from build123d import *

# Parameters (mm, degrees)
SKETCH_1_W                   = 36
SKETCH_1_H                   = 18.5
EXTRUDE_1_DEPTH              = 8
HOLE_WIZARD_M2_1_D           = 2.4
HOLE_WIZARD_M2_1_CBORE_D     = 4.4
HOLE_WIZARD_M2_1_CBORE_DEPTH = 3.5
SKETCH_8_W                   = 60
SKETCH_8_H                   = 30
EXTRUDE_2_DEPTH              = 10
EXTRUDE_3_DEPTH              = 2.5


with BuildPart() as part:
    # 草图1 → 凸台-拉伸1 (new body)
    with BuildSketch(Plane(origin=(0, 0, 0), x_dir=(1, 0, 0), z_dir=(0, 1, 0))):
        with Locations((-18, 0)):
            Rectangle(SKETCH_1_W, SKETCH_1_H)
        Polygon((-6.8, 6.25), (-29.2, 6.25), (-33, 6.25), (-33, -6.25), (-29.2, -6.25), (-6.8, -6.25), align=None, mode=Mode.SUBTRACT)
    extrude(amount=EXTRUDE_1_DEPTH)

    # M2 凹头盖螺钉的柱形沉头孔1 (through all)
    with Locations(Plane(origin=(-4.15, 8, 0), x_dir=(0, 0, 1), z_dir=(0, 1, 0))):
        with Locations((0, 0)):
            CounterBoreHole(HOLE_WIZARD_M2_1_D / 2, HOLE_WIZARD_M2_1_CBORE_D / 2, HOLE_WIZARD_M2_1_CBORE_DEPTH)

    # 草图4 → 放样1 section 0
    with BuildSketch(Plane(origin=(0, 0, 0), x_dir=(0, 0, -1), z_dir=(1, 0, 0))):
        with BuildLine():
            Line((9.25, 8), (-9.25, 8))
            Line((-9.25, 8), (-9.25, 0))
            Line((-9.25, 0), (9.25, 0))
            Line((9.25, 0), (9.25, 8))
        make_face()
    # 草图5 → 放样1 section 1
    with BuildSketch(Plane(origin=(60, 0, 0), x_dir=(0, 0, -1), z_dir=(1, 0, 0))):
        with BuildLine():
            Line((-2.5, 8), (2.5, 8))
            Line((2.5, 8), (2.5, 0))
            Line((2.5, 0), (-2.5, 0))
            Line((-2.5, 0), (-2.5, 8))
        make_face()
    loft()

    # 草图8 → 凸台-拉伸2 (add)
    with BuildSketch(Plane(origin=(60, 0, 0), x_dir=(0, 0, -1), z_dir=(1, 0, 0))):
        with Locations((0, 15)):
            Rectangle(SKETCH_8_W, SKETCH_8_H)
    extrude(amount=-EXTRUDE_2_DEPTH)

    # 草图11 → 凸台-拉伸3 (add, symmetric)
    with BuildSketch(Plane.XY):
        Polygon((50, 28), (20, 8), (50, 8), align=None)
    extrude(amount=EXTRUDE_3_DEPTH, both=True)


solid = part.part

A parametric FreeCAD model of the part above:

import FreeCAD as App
import Part
import Sketcher

doc = App.newDocument("Part")
body = doc.addObject("PartDesign::Body", "Body")

# Sketch on XZ plane
sketch1 = doc.addObject("Sketcher::SketchObject", "Sketch")
body.addObject(sketch1)
sketch1.AttachmentSupport = (doc.XZ_Plane, [""])
sketch1.MapMode = "FlatFace"
sketch1.addGeometry(Part.LineSegment(App.Vector(-36, -9, 0), App.Vector(-36, 9, 0)), False)
sketch1.addGeometry(Part.LineSegment(App.Vector(-36, 9, 0), App.Vector(0, 9, 0)), False)
sketch1.addGeometry(Part.LineSegment(App.Vector(0, 9, 0), App.Vector(0, -9, 0)), False)
sketch1.addGeometry(Part.LineSegment(App.Vector(0, -9, 0), App.Vector(-36, -9, 0)), False)
sketch1.addGeometry(Part.LineSegment(App.Vector(-33, -6, 0), App.Vector(-7, -6, 0)), False)
sketch1.addGeometry(Part.LineSegment(App.Vector(-7, -6, 0), App.Vector(-7, 6, 0)), False)
sketch1.addGeometry(Part.LineSegment(App.Vector(-7, 6, 0), App.Vector(-33, 6, 0)), False)
sketch1.addGeometry(Part.LineSegment(App.Vector(-33, 6, 0), App.Vector(-33, -6, 0)), False)
sketch1.addConstraint(Sketcher.Constraint("Coincident", 0, 2, 1, 1))
sketch1.addConstraint(Sketcher.Constraint("Coincident", 1, 2, 2, 1))
sketch1.addConstraint(Sketcher.Constraint("Coincident", 2, 2, 3, 1))
sketch1.addConstraint(Sketcher.Constraint("Coincident", 3, 2, 0, 1))
sketch1.addConstraint(Sketcher.Constraint("Coincident", 4, 2, 5, 1))
sketch1.addConstraint(Sketcher.Constraint("Coincident", 5, 2, 6, 1))
sketch1.addConstraint(Sketcher.Constraint("Coincident", 6, 2, 7, 1))
sketch1.addConstraint(Sketcher.Constraint("Coincident", 7, 2, 4, 1))
sketch1.addConstraint(Sketcher.Constraint("Vertical", 0))
sketch1.addConstraint(Sketcher.Constraint("Horizontal", 1))
sketch1.addConstraint(Sketcher.Constraint("Vertical", 2))
sketch1.addConstraint(Sketcher.Constraint("Horizontal", 3))
sketch1.addConstraint(Sketcher.Constraint("Horizontal", 4))
sketch1.addConstraint(Sketcher.Constraint("Vertical", 5))
sketch1.addConstraint(Sketcher.Constraint("Horizontal", 6))
sketch1.addConstraint(Sketcher.Constraint("Vertical", 7))
sketch1.addConstraint(Sketcher.Constraint("Symmetric", 1, 2, 2, 2, -1, 1))
sketch1.addConstraint(Sketcher.Constraint("DistanceX", 1, 1, 1, 2, 36.0))
sketch1.addConstraint(Sketcher.Constraint("DistanceX", 4, 1, 4, 2, 26.2))
sketch1.addConstraint(Sketcher.Constraint("DistanceY", 0, 1, 0, 2, 18.5))
sketch1.addConstraint(Sketcher.Constraint("DistanceY", 5, 1, 5, 2, 12.5))
sketch1.addConstraint(Sketcher.Constraint("DistanceX", 6, 2, -1, 1, 33.0))
sketch1.addConstraint(Sketcher.Constraint("DistanceY", 2, 2, 4, 2, 3.0))
pad1 = doc.addObject("PartDesign::Pad", "Pad")
body.addObject(pad1)
pad1.Profile = sketch1
pad1.Length = 8
pad1.Reversed = True

# Sketch on XZ plane
sketch2 = doc.addObject("Sketcher::SketchObject", "Sketch001")
body.addObject(sketch2)
sketch2.AttachmentSupport = (doc.XZ_Plane, [""])
sketch2.MapMode = "FlatFace"
sketch2.AttachmentOffset = App.Placement(App.Vector(0, 0, -8), App.Rotation())
sketch2.addGeometry(Part.Circle(App.Vector(-4.2, 0, 0), App.Vector(0, 0, 1), 1.2), False)
sketch2.addConstraint(Sketcher.Constraint("PointOnObject", 0, 3, -1))
sketch2.addConstraint(Sketcher.Constraint("Diameter", 0, 2.4))
sketch2.addConstraint(Sketcher.Constraint("DistanceX", 0, 3, -1, 1, 4.15))
doc.recompute()
hole = doc.addObject("PartDesign::Hole", "Hole")
body.addObject(hole)
hole.Profile = sketch2
hole.ThreadType = "None"
hole.Diameter = 2.4
hole.DepthType = "ThroughAll"
hole.HoleCutType = "Counterbore"
hole.HoleCutDiameter = 4.4
hole.HoleCutDepth = 3.5
hole.Reversed = True

# Sketch on YZ plane
sketch3 = doc.addObject("Sketcher::SketchObject", "Sketch002")
body.addObject(sketch3)
sketch3.AttachmentSupport = (doc.YZ_Plane, [""])
sketch3.MapMode = "FlatFace"
sketch3.addGeometry(Part.LineSegment(App.Vector(8, -9, 0), App.Vector(8, 9, 0)), False)
sketch3.addGeometry(Part.LineSegment(App.Vector(8, 9, 0), App.Vector(0, 9, 0)), False)
sketch3.addGeometry(Part.LineSegment(App.Vector(0, 9, 0), App.Vector(0, -9, 0)), False)
sketch3.addGeometry(Part.LineSegment(App.Vector(0, -9, 0), App.Vector(8, -9, 0)), False)
sketch3.addConstraint(Sketcher.Constraint("Coincident", 0, 2, 1, 1))
sketch3.addConstraint(Sketcher.Constraint("Coincident", 1, 2, 2, 1))
sketch3.addConstraint(Sketcher.Constraint("Coincident", 2, 2, 3, 1))
sketch3.addConstraint(Sketcher.Constraint("Coincident", 3, 2, 0, 1))
sketch3.addConstraint(Sketcher.Constraint("Vertical", 0))
sketch3.addConstraint(Sketcher.Constraint("Horizontal", 1))
sketch3.addConstraint(Sketcher.Constraint("Vertical", 2))
sketch3.addConstraint(Sketcher.Constraint("Horizontal", 3))
sketch3.addConstraint(Sketcher.Constraint("Symmetric", 1, 2, 2, 2, -1, 1))
sketch3.addConstraint(Sketcher.Constraint("DistanceX", 1, 2, 1, 1, 8.0))
sketch3.addConstraint(Sketcher.Constraint("DistanceY", 0, 1, 0, 2, 18.5))

# Sketch on YZ plane
sketch4 = doc.addObject("Sketcher::SketchObject", "Sketch003")
body.addObject(sketch4)
sketch4.AttachmentSupport = (doc.YZ_Plane, [""])
sketch4.MapMode = "FlatFace"
sketch4.AttachmentOffset = App.Placement(App.Vector(0, 0, 60), App.Rotation())
sketch4.addGeometry(Part.LineSegment(App.Vector(8, -2, 0), App.Vector(8, 2, 0)), False)
sketch4.addGeometry(Part.LineSegment(App.Vector(8, 2, 0), App.Vector(0, 2, 0)), False)
sketch4.addGeometry(Part.LineSegment(App.Vector(0, 2, 0), App.Vector(0, -2, 0)), False)
sketch4.addGeometry(Part.LineSegment(App.Vector(0, -2, 0), App.Vector(8, -2, 0)), False)
sketch4.addConstraint(Sketcher.Constraint("Coincident", 0, 2, 1, 1))
sketch4.addConstraint(Sketcher.Constraint("Coincident", 1, 2, 2, 1))
sketch4.addConstraint(Sketcher.Constraint("Coincident", 2, 2, 3, 1))
sketch4.addConstraint(Sketcher.Constraint("Coincident", 3, 2, 0, 1))
sketch4.addConstraint(Sketcher.Constraint("Vertical", 0))
sketch4.addConstraint(Sketcher.Constraint("Horizontal", 1))
sketch4.addConstraint(Sketcher.Constraint("Vertical", 2))
sketch4.addConstraint(Sketcher.Constraint("Horizontal", 3))
sketch4.addConstraint(Sketcher.Constraint("Symmetric", 1, 2, 2, 2, -1, 1))
sketch4.addConstraint(Sketcher.Constraint("DistanceX", 1, 2, 1, 1, 8.0))
sketch4.addConstraint(Sketcher.Constraint("DistanceY", 0, 1, 0, 2, 5.0))

additiveloft = doc.addObject("PartDesign::AdditiveLoft", "AdditiveLoft")
body.addObject(additiveloft)
additiveloft.Profile = sketch3
additiveloft.Sections = [sketch4]

# Sketch on YZ plane
sketch5 = doc.addObject("Sketcher::SketchObject", "Sketch004")
body.addObject(sketch5)
sketch5.AttachmentSupport = (doc.YZ_Plane, [""])
sketch5.MapMode = "FlatFace"
sketch5.AttachmentOffset = App.Placement(App.Vector(0, 0, 60), App.Rotation())
sketch5.addGeometry(Part.LineSegment(App.Vector(30, 30, 0), App.Vector(0, 30, 0)), False)
sketch5.addGeometry(Part.LineSegment(App.Vector(0, 30, 0), App.Vector(0, -30, 0)), False)
sketch5.addGeometry(Part.LineSegment(App.Vector(0, -30, 0), App.Vector(30, -30, 0)), False)
sketch5.addGeometry(Part.LineSegment(App.Vector(30, -30, 0), App.Vector(30, 30, 0)), False)
sketch5.addConstraint(Sketcher.Constraint("Coincident", 0, 2, 1, 1))
sketch5.addConstraint(Sketcher.Constraint("Coincident", 1, 2, 2, 1))
sketch5.addConstraint(Sketcher.Constraint("Coincident", 2, 2, 3, 1))
sketch5.addConstraint(Sketcher.Constraint("Coincident", 3, 2, 0, 1))
sketch5.addConstraint(Sketcher.Constraint("Horizontal", 0))
sketch5.addConstraint(Sketcher.Constraint("Vertical", 1))
sketch5.addConstraint(Sketcher.Constraint("Horizontal", 2))
sketch5.addConstraint(Sketcher.Constraint("Vertical", 3))
sketch5.addConstraint(Sketcher.Constraint("Symmetric", 0, 2, 1, 2, -1, 1))
sketch5.addConstraint(Sketcher.Constraint("DistanceX", 0, 2, 0, 1, 30.0))
sketch5.addConstraint(Sketcher.Constraint("DistanceY", 1, 2, 1, 1, 60.0))
pad2 = doc.addObject("PartDesign::Pad", "Pad001")
body.addObject(pad2)
pad2.Profile = sketch5
pad2.Length = 10
pad2.Reversed = True

# Sketch on XY plane
sketch6 = doc.addObject("Sketcher::SketchObject", "Sketch005")
body.addObject(sketch6)
sketch6.AttachmentSupport = (doc.XY_Plane, [""])
sketch6.MapMode = "FlatFace"
sketch6.addGeometry(Part.LineSegment(App.Vector(50, 28, 0), App.Vector(20, 8, 0)), False)
sketch6.addGeometry(Part.LineSegment(App.Vector(20, 8, 0), App.Vector(50, 8, 0)), False)
sketch6.addGeometry(Part.LineSegment(App.Vector(50, 8, 0), App.Vector(50, 28, 0)), False)
sketch6.addConstraint(Sketcher.Constraint("Coincident", 0, 2, 1, 1))
sketch6.addConstraint(Sketcher.Constraint("Coincident", 1, 2, 2, 1))
sketch6.addConstraint(Sketcher.Constraint("Coincident", 2, 2, 0, 1))
sketch6.addConstraint(Sketcher.Constraint("Horizontal", 1))
sketch6.addConstraint(Sketcher.Constraint("Vertical", 2))
sketch6.addConstraint(Sketcher.Constraint("DistanceX", 1, 1, 1, 2, 30.0))
sketch6.addConstraint(Sketcher.Constraint("DistanceY", 2, 1, 2, 2, 20.0))
sketch6.addConstraint(Sketcher.Constraint("DistanceX", -1, 1, 0, 2, 20.0))
sketch6.addConstraint(Sketcher.Constraint("DistanceY", -1, 1, 0, 2, 8.0))
pad3 = doc.addObject("PartDesign::Pad", "Pad002")
body.addObject(pad3)
pad3.Profile = sketch6
pad3.Length = 5
pad3.Midplane = True

doc.recompute()
